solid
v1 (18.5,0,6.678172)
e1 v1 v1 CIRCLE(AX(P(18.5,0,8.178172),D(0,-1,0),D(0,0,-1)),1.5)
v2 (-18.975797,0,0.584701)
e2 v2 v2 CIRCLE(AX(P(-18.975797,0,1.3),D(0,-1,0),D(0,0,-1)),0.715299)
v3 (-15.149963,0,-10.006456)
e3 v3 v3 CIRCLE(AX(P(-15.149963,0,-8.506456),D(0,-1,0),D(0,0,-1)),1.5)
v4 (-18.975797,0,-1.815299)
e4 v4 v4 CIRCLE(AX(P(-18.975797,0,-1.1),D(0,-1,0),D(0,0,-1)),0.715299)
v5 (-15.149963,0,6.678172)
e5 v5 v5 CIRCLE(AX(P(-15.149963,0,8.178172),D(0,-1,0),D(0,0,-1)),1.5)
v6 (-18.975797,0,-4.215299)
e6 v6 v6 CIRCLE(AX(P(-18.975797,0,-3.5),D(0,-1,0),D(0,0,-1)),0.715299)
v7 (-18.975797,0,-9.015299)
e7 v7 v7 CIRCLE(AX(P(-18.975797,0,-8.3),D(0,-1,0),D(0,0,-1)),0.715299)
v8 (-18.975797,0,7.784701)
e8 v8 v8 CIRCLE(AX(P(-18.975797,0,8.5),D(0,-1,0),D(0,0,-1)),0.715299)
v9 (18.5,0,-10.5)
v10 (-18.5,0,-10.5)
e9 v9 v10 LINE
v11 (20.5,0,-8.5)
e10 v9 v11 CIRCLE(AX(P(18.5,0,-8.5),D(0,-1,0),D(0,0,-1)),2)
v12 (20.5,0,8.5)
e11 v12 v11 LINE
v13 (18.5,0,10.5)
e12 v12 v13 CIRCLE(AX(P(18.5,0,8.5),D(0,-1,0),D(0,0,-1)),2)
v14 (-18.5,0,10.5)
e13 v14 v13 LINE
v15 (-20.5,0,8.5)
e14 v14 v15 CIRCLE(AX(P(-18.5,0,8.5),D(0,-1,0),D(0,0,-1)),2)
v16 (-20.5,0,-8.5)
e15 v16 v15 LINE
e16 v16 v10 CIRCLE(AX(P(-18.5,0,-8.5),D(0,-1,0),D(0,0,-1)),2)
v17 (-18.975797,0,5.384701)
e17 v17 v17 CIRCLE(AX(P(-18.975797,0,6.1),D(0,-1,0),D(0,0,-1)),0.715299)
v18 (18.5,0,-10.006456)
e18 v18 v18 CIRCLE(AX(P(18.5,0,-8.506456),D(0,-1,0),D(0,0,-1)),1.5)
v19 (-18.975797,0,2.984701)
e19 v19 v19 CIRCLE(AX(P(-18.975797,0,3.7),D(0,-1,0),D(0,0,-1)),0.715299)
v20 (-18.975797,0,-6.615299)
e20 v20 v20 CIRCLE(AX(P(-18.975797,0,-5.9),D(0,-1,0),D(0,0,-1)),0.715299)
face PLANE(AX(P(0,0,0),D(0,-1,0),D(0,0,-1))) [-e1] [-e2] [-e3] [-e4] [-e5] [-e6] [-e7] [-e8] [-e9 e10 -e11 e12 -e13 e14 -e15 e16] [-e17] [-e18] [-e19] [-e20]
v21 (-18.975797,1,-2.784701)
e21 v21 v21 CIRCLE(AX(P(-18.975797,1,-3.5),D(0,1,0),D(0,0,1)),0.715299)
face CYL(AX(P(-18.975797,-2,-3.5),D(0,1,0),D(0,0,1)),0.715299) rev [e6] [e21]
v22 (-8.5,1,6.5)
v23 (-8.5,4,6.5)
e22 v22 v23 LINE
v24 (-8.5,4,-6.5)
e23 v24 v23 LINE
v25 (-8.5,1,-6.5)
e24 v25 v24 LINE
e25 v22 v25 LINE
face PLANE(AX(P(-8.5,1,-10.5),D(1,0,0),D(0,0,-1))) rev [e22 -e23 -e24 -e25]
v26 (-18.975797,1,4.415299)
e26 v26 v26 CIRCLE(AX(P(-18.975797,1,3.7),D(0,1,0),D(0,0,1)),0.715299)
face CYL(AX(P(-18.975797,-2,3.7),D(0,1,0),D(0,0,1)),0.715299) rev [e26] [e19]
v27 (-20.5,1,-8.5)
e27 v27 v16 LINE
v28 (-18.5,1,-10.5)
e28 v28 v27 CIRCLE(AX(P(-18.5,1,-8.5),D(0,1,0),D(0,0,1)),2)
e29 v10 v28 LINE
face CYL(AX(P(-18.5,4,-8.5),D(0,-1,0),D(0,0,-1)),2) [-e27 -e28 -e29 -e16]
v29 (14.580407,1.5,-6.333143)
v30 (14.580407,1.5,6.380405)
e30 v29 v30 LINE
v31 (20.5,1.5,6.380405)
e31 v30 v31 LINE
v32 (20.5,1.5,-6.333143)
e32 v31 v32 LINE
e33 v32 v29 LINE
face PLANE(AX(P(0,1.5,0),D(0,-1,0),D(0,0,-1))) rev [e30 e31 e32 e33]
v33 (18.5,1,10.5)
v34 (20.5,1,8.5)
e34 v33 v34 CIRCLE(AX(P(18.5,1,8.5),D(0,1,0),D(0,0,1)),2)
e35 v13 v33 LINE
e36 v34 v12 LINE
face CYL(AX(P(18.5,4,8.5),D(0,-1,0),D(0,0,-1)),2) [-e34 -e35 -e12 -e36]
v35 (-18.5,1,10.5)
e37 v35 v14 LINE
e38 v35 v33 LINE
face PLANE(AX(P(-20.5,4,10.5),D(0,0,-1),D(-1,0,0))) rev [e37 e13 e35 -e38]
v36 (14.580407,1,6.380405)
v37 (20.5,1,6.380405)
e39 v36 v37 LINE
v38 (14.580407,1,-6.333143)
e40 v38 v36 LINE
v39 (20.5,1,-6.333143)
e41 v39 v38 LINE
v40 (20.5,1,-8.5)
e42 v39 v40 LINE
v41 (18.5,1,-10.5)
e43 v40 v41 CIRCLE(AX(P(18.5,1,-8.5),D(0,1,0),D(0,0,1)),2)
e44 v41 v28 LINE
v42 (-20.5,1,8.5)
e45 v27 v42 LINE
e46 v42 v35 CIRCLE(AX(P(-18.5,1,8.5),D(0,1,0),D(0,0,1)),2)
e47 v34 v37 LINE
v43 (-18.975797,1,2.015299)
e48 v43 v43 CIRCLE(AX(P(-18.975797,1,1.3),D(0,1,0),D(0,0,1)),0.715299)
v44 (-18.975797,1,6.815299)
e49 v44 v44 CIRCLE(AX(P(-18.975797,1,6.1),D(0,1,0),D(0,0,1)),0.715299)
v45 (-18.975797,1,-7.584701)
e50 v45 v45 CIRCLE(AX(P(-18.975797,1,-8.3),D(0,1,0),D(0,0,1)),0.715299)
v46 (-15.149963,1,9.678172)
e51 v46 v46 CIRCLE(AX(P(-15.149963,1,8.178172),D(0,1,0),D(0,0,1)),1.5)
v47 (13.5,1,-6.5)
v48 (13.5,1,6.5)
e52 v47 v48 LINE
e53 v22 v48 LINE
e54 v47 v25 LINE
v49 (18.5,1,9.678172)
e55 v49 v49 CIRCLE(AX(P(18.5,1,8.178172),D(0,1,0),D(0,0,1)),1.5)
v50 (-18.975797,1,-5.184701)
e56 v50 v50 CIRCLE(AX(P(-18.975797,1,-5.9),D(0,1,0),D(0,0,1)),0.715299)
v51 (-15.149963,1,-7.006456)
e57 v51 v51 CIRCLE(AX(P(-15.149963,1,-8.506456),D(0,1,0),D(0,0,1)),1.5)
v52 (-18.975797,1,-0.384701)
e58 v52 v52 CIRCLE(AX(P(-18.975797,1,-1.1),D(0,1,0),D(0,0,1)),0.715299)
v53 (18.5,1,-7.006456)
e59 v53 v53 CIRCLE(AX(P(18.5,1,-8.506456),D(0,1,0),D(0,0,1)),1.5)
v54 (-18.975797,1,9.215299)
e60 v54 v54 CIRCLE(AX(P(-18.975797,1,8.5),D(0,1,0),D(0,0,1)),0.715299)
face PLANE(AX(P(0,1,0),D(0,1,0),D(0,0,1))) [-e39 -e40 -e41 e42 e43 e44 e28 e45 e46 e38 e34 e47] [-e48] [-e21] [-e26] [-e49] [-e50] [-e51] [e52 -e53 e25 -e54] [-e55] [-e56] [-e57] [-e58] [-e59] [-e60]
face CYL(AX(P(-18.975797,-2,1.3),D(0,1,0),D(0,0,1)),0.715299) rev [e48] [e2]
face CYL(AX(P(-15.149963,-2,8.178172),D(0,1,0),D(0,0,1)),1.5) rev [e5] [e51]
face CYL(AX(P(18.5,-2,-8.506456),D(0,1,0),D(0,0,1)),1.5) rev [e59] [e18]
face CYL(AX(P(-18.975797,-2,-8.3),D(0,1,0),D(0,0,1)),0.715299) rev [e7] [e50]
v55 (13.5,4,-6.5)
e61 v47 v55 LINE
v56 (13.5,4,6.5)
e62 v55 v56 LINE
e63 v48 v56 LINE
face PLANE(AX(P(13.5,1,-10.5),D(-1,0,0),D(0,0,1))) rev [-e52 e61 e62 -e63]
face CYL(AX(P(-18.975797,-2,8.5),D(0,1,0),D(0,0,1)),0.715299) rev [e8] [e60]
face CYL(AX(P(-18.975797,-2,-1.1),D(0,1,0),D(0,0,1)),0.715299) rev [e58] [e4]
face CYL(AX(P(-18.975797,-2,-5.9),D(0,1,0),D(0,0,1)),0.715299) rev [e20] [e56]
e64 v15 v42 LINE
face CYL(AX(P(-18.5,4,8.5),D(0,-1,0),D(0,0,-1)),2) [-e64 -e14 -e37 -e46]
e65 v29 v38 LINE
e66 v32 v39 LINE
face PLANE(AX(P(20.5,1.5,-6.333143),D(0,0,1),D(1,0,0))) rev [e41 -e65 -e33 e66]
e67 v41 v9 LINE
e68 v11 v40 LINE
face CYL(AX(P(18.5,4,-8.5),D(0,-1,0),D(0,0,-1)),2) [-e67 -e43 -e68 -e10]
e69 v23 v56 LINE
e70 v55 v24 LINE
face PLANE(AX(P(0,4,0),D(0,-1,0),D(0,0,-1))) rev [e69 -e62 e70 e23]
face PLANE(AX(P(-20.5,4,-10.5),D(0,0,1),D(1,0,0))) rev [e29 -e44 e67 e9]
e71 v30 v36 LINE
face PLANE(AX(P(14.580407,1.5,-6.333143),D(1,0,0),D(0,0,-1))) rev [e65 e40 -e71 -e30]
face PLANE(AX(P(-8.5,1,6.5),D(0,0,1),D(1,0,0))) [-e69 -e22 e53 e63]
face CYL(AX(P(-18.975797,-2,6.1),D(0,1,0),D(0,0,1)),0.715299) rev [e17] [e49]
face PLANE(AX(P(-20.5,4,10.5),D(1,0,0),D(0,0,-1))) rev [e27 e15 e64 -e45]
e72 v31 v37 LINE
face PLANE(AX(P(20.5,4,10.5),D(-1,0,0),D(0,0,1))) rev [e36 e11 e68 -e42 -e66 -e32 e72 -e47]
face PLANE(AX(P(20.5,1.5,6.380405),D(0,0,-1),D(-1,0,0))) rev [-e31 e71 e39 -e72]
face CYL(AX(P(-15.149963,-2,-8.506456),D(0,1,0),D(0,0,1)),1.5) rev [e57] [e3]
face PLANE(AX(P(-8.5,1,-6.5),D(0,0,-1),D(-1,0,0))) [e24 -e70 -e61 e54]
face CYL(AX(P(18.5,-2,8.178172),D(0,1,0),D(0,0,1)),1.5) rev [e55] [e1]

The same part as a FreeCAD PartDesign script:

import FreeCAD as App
import Part
import Sketcher

V = App.Vector
Q = App.Units.Quantity


def edges_at(feature, points):
    """Names of the edges that pass closest to the given points."""
    edges = feature.Shape.Edges
    near = lambda p: min(range(len(edges)), key=lambda i: edges[i].distToShape(Part.Vertex(*p))[0])
    return sorted({f"Edge{near(p) + 1}" for p in points})


def add_polygon(sketch, points):
    """Adds a closed chain of lines whose ends are joined by coincident constraints."""
    first, n = sketch.GeometryCount, len(points)
    for a, b in zip(points, points[1:] + points[:1]):
        sketch.addGeometry(Part.LineSegment(App.Vector(*a, 0), App.Vector(*b, 0)), False)
    for i in range(n):
        sketch.addConstraint(Sketcher.Constraint("Coincident", first + i, 2, first + (i + 1) % n, 1))

doc = App.newDocument("Part")
body = doc.addObject("PartDesign::Body", "Body")

# Sketch on XZ plane
sketch1 = body.newObject("Sketcher::SketchObject", "Sketch")
sketch1.AttachmentSupport = (doc.getObject("XZ_Plane"), [""])
sketch1.MapMode = "FlatFace"
add_polygon(sketch1, [(-20.5, -10.5), (-20.5, 10.5), (20.5, 10.5), (20.5, -10.5)])  # lines 0-3
sketch1.addConstraint([
    Sketcher.Constraint("Vertical", 0),
    Sketcher.Constraint("Horizontal", 1),
    Sketcher.Constraint("Vertical", 2),
    Sketcher.Constraint("Horizontal", 3),
    Sketcher.Constraint("Symmetric", 0, 2, 2, 2, -1, 1),
    Sketcher.Constraint("DistanceX", 1, 1, 1, 2, Q("41 mm")),
    Sketcher.Constraint("DistanceY", 0, 1, 0, 2, Q("21 mm")),
])
pad1 = body.newObject("PartDesign::Pad", "Pad")
pad1.Profile = sketch1
pad1.Length = 4
pad1.Reversed = True

# Sketch on XZ plane
sketch2 = body.newObject("Sketcher::SketchObject", "Sketch001")
sketch2.AttachmentSupport = (doc.getObject("XZ_Plane"), [""])
sketch2.MapMode = "FlatFace"
sketch2.AttachmentOffset = App.Placement(V(0, 0, -4), App.Rotation())
add_polygon(sketch2, [(-20.5, -10.5), (-20.5, 10.562926), (-8.5, 10.562926), (-8.5, -10.5)])  # lines 0-3
sketch2.addConstraint([
    Sketcher.Constraint("Vertical", 0),
    Sketcher.Constraint("Horizontal", 1),
    Sketcher.Constraint("Vertical", 2),
    Sketcher.Constraint("Horizontal", 3),
    Sketcher.Constraint("DistanceX", 1, 1, 1, 2, Q("12 mm")),
    Sketcher.Constraint("DistanceX", 0, 2, -1, 1, Q("20.5 mm")),
    Sketcher.Constraint("DistanceY", 2, 2, -1, 1, Q("10.5 mm")),
    Sketcher.Constraint("DistanceY", 0, 1, 0, 2, Q("21.062926 mm")),
])
pocket1 = body.newObject("PartDesign::Pocket", "Pocket")
pocket1.Profile = sketch2
pocket1.Length = 3
pocket1.Reversed = True

# Sketch on XZ plane
sketch3 = body.newObject("Sketcher::SketchObject", "Sketch002")
sketch3.AttachmentSupport = (doc.getObject("XZ_Plane"), [""])
sketch3.MapMode = "FlatFace"
sketch3.AttachmentOffset = App.Placement(V(0, 0, -4), App.Rotation())
add_polygon(sketch3, [(13.5, -10.5), (13.5, 10.5), (20.5, 10.5), (20.5, -10.5)])  # lines 0-3
sketch3.addConstraint([
    Sketcher.Constraint("Vertical", 0),
    Sketcher.Constraint("Horizontal", 1),
    Sketcher.Constraint("Vertical", 2),
    Sketcher.Constraint("Horizontal", 3),
    Sketcher.Constraint("DistanceX", 1, 1, 1, 2, Q("7 mm")),
    Sketcher.Constraint("DistanceY", 0, 1, 0, 2, Q("21 mm")),
    Sketcher.Constraint("DistanceX", -1, 1, 0, 2, Q("13.5 mm")),
    Sketcher.Constraint("DistanceY", -1, 1, 0, 2, Q("10.5 mm")),
])
pocket2 = body.newObject("PartDesign::Pocket", "Pocket001")
pocket2.Profile = sketch3
pocket2.Length = 3
pocket2.Reversed = True

# Sketch on XZ plane
sketch4 = body.newObject("Sketcher::SketchObject", "Sketch003")
sketch4.AttachmentSupport = (doc.getObject("XZ_Plane"), [""])
sketch4.MapMode = "FlatFace"
sketch4.AttachmentOffset = App.Placement(V(0, 0, -4), App.Rotation())
add_polygon(sketch4, [(-26.124, -16.124), (-26.124, 16.124), (26.124, 16.124), (26.124, -16.124)])  # lines 0-3
add_polygon(sketch4, [(13.5, 6.5), (-8.5, 6.5), (-8.5, -6.5), (13.5, -6.5)])  # lines 4-7
sketch4.addConstraint([
    Sketcher.Constraint("Vertical", 0),
    Sketcher.Constraint("Horizontal", 1),
    Sketcher.Constraint("Vertical", 2),
    Sketcher.Constraint("Horizontal", 3),
    Sketcher.Constraint("Horizontal", 4),
    Sketcher.Constraint("Vertical", 5),
    Sketcher.Constraint("Horizontal", 6),
    Sketcher.Constraint("Vertical", 7),
    Sketcher.Constraint("Symmetric", 0, 2, 2, 2, -1, 1),
    Sketcher.Constraint("DistanceX", 4, 2, 4, 1, Q("22 mm")),
    Sketcher.Constraint("DistanceY", 5, 2, 5, 1, Q("13 mm")),
    Sketcher.Constraint("DistanceX", 4, 2, -1, 1, Q("8.5 mm")),
    Sketcher.Constraint("DistanceY", -1, 1, 4, 2, Q("6.5 mm")),
    Sketcher.Constraint("DistanceX", 1, 1, 1, 2, Q("52.248 mm")),
    Sketcher.Constraint("DistanceY", 0, 1, 0, 2, Q("32.248 mm")),
])
pocket3 = body.newObject("PartDesign::Pocket", "Pocket002")
pocket3.Profile = sketch4
pocket3.Length = 3
pocket3.Reversed = True
doc.recompute()

fillet = body.newObject("PartDesign::Fillet", "Fillet")
fillet.Base = (pocket3, edges_at(pocket3, [
    (-20.5, 0.5, 10.5),
    (-20.5, 0.5, -10.5),
    (20.5, 0.5, 10.5),
    (20.5, 0.5, -10.5),
]))
fillet.Radius = 2

# Sketch on XZ plane
sketch5 = body.newObject("Sketcher::SketchObject", "Sketch004")
sketch5.AttachmentSupport = (doc.getObject("XZ_Plane"), [""])
sketch5.MapMode = "FlatFace"
sketch5.AttachmentOffset = App.Placement(V(0, 0, -1), App.Rotation())
sketch5.addGeometry(Part.Circle(V(-18.975797, 8.5, 0), V(0, 0, 1), 0.715299), False)
sketch5.addConstraint([
    Sketcher.Constraint("Diameter", 0, Q("1.430599 mm")),
    Sketcher.Constraint("DistanceY", -1, 1, 0, 3, Q("8.5 mm")),
    Sketcher.Constraint("DistanceX", 0, 3, -1, 1, Q("18.975797 mm")),
])
pocket4 = body.newObject("PartDesign::Pocket", "Pocket003")
pocket4.Profile = sketch5
pocket4.Length = 3
pocket4.Reversed = True
doc.recompute()

linearpattern = body.newObject("PartDesign::LinearPattern", "LinearPattern")
linearpattern.Originals = [pocket4]
linearpattern.Direction = (doc.getObject("Z_Axis"), [""])
linearpattern.Mode = "offset"
linearpattern.Offset = 2.4
linearpattern.Occurrences = 8
linearpattern.Reversed = True
body.Tip = linearpattern

# Sketch on XZ plane
sketch6 = body.newObject("Sketcher::SketchObject", "Sketch005")
sketch6.AttachmentSupport = (doc.getObject("XZ_Plane"), [""])
sketch6.MapMode = "FlatFace"
sketch6.AttachmentOffset = App.Placement(V(0, 0, -1), App.Rotation())
sketch6.addGeometry([
    Part.Circle(V(-15.149963, -8.506456, 0), V(0, 0, 1), 1.5),
    Part.Circle(V(18.5, -8.506456, 0), V(0, 0, 1), 1.5),
    Part.Circle(V(-15.149963, 8.178172, 0), V(0, 0, 1), 1.5),
    Part.Circle(V(18.5, 8.178172, 0), V(0, 0, 1), 1.5),
], False)
sketch6.addConstraint([
    Sketcher.Constraint("Equal", 0, 1),
    Sketcher.Constraint("Equal", 1, 2),
    Sketcher.Constraint("Equal", 2, 3),
    Sketcher.Constraint("Horizontal", 0, 3, 1, 3),
    Sketcher.Constraint("Horizontal", 2, 3, 3, 3),
    Sketcher.Constraint("Vertical", 0, 3, 2, 3),
    Sketcher.Constraint("Vertical", 1, 3, 3, 3),
    Sketcher.Constraint("Diameter", 0, Q("3 mm")),
    Sketcher.Constraint("DistanceX", -1, 1, 1, 3, Q("18.5 mm")),
    Sketcher.Constraint("DistanceX", 0, 3, -1, 1, Q("15.149963 mm")),
    Sketcher.Constraint("DistanceY", 0, 3, -1, 1, Q("8.506456 mm")),
    Sketcher.Constraint("DistanceY", -1, 1, 2, 3, Q("8.178172 mm")),
])
pocket5 = body.newObject("PartDesign::Pocket", "Pocket004")
pocket5.Profile = sketch6
pocket5.Length = 3
pocket5.Reversed = True

# Sketch on XZ plane
sketch7 = body.newObject("Sketcher::SketchObject", "Sketch006")
sketch7.AttachmentSupport = (doc.getObject("XZ_Plane"), [""])
sketch7.MapMode = "FlatFace"
sketch7.AttachmentOffset = App.Placement(V(0, 0, -1), App.Rotation())
add_polygon(sketch7, [(14.580407, -6.333143), (14.580407, 6.380405), (20.5, 6.380405), (20.5, -6.333143)])  # lines 0-3
sketch7.addConstraint([
    Sketcher.Constraint("Vertical", 0),
    Sketcher.Constraint("Horizontal", 1),
    Sketcher.Constraint("Vertical", 2),
    Sketcher.Constraint("Horizontal", 3),
    Sketcher.Constraint("DistanceX", -1, 1, 1, 2, Q("20.5 mm")),
    Sketcher.Constraint("DistanceX", 1, 1, 1, 2, Q("5.919593 mm")),
    Sketcher.Constraint("DistanceY", 0, 1, 0, 2, Q("12.713548 mm")),
    Sketcher.Constraint("DistanceY", -1, 1, 0, 2, Q("6.380405 mm")),
])
pad2 = body.newObject("PartDesign::Pad", "Pad001")
pad2.Profile = sketch7
pad2.Length = 0.5
pad2.Reversed = True

doc.recompute()
